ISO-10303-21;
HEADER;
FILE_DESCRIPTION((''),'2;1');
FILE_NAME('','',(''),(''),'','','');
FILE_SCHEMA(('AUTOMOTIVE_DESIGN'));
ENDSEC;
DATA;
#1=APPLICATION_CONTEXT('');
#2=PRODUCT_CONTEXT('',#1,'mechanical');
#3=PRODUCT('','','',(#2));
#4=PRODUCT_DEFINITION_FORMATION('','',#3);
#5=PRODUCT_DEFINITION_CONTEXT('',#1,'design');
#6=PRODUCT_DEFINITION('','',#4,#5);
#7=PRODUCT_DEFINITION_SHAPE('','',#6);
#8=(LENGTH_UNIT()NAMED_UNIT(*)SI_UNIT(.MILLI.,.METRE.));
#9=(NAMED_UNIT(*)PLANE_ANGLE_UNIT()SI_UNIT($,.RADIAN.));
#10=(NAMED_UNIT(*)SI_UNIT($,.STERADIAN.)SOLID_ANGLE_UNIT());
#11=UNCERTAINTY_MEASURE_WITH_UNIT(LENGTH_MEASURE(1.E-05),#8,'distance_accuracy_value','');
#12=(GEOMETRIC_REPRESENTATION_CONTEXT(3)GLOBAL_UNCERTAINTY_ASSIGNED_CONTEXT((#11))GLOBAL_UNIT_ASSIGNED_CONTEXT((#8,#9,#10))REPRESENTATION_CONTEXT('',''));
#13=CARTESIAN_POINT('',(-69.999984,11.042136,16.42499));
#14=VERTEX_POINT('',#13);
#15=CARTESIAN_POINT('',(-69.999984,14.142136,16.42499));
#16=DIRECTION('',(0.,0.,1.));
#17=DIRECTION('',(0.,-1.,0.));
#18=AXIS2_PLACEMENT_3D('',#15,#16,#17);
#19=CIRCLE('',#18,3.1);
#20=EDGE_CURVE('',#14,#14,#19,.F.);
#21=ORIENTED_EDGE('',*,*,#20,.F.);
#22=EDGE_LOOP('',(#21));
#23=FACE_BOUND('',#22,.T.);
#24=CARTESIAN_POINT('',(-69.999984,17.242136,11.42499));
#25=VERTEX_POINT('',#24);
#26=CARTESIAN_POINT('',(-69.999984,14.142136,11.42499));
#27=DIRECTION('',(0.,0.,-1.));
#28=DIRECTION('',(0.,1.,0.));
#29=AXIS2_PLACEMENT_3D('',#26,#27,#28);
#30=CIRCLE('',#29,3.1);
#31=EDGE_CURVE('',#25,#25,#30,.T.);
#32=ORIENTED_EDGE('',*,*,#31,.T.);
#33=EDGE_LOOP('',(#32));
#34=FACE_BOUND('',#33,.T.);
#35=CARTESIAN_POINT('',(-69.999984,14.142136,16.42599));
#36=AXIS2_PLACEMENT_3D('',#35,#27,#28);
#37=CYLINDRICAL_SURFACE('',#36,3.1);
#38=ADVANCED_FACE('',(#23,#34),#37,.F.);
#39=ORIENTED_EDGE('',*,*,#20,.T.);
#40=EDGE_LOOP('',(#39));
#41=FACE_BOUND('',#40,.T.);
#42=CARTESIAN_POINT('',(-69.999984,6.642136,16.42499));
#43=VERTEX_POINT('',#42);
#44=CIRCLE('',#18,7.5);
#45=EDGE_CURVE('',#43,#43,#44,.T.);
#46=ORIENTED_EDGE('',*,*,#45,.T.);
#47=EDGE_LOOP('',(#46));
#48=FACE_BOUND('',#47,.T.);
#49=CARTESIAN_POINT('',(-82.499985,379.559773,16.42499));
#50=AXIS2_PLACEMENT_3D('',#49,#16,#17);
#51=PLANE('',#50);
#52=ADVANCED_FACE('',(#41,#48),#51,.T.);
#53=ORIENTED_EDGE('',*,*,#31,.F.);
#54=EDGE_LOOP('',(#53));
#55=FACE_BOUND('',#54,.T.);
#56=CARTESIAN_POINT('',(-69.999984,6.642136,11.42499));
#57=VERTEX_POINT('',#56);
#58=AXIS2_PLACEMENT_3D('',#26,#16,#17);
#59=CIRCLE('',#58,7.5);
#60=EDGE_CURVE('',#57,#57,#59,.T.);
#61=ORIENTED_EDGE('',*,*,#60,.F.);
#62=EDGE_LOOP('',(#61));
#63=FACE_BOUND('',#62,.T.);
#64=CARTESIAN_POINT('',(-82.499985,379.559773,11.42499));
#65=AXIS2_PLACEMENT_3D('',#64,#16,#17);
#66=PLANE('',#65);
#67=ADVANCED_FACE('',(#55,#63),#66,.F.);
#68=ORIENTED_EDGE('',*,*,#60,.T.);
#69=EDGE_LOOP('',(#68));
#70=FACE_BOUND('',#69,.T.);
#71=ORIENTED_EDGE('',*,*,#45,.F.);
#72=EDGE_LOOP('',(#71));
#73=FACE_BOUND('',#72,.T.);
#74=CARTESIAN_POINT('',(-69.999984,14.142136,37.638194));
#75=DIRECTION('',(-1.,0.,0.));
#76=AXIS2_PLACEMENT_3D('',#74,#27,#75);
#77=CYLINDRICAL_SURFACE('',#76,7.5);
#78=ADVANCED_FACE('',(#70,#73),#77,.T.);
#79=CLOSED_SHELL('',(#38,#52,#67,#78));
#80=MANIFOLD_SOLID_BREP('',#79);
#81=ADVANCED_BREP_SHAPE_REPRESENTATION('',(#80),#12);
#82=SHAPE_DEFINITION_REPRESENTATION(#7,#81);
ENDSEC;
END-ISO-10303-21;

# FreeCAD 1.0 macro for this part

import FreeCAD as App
import Part
import Sketcher

V = App.Vector
Q = App.Units.Quantity

doc = App.newDocument("Part")
params = doc.addObject("Spreadsheet::Sheet", "Params")
for row, (alias, value) in enumerate([
    ("sketch1_diameter", "15 mm"),
    ("sketch1_diameter2", "6 mm"),
    ("pad1_length", "3.82499 mm"),
    ("sketch2_diameter", "15 mm"),
    ("sketch2_diameter2", "6 mm"),
    ("pad2_length", "1.17501 mm"),
    ("sketch3_diameter", "6.2 mm"),
    ("pocket1_length", "5 mm"),
], start=1):
    params.set(f"A{row}", alias)
    params.set(f"B{row}", "=" + value)
    params.setAlias(f"B{row}", alias)

body = doc.addObject("PartDesign::Body", "Body")

# Sketch on XY plane
sketch1 = body.newObject("Sketcher::SketchObject", "Sketch")
sketch1.AttachmentSupport = (doc.getObject("XY_Plane"), [""])
sketch1.MapMode = "FlatFace"
sketch1.AttachmentOffset = App.Placement(V(0, 0, 12.6), App.Rotation())
sketch1.addGeometry([
    Part.Circle(V(-70, 14.1, 0), V(0, 0, 1), 7.5),
    Part.Circle(V(-70, 14.1, 0), V(0, 0, 1), 3),
], False)
sketch1.addConstraint([
    Sketcher.Constraint("Coincident", 1, 3, 0, 3),
    Sketcher.Constraint("Diameter", 0, Q("15 mm")),
    Sketcher.Constraint("Diameter", 1, Q("6 mm")),
    Sketcher.Constraint("DistanceX", 0, 3, -1, 1, Q("69.999984 mm")),
    Sketcher.Constraint("DistanceY", -1, 1, 0, 3, Q("14.142136 mm")),
])
sketch1.setExpression("Constraints[1]", "Params.sketch1_diameter")
sketch1.setExpression("Constraints[2]", "Params.sketch1_diameter2")
pad1 = body.newObject("PartDesign::Pad", "Pad")
pad1.Profile = sketch1
pad1.setExpression("Length", "Params.pad1_length")

# Sketch on XY plane
sketch2 = body.newObject("Sketcher::SketchObject", "Sketch001")
sketch2.AttachmentSupport = (doc.getObject("XY_Plane"), [""])
sketch2.MapMode = "FlatFace"
sketch2.AttachmentOffset = App.Placement(V(0, 0, 12.6), App.Rotation())
sketch2.addGeometry([
    Part.Circle(V(-70, 14.1, 0), V(0, 0, 1), 7.5),
    Part.Circle(V(-70, 14.1, 0), V(0, 0, 1), 3),
], False)
sketch2.addConstraint([
    Sketcher.Constraint("Coincident", 1, 3, 0, 3),
    Sketcher.Constraint("Diameter", 0, Q("15 mm")),
    Sketcher.Constraint("Diameter", 1, Q("6 mm")),
    Sketcher.Constraint("DistanceX", 0, 3, -1, 1, Q("69.999984 mm")),
    Sketcher.Constraint("DistanceY", -1, 1, 0, 3, Q("14.142136 mm")),
])
sketch2.setExpression("Constraints[1]", "Params.sketch2_diameter")
sketch2.setExpression("Constraints[2]", "Params.sketch2_diameter2")
pad2 = body.newObject("PartDesign::Pad", "Pad001")
pad2.Profile = sketch2
pad2.setExpression("Length", "Params.pad2_length")
pad2.Reversed = True

# Sketch on XY plane
sketch3 = body.newObject("Sketcher::SketchObject", "Sketch002")
sketch3.AttachmentSupport = (doc.getObject("XY_Plane"), [""])
sketch3.MapMode = "FlatFace"
sketch3.AttachmentOffset = App.Placement(V(0, 0, 11.42499), App.Rotation())
sketch3.addGeometry(Part.Circle(V(-70, 14.1, 0), V(0, 0, 1), 3.1), False)
sketch3.addConstraint([
    Sketcher.Constraint("Diameter", 0, Q("6.2 mm")),
    Sketcher.Constraint("DistanceX", 0, 3, -1, 1, Q("69.999984 mm")),
    Sketcher.Constraint("DistanceY", -1, 1, 0, 3, Q("14.142136 mm")),
])
sketch3.setExpression("Constraints[0]", "Params.sketch3_diameter")
pocket1 = body.newObject("PartDesign::Pocket", "Pocket")
pocket1.Profile = sketch3
pocket1.setExpression("Length", "Params.pocket1_length")
pocket1.Reversed = True

doc.recompute()
